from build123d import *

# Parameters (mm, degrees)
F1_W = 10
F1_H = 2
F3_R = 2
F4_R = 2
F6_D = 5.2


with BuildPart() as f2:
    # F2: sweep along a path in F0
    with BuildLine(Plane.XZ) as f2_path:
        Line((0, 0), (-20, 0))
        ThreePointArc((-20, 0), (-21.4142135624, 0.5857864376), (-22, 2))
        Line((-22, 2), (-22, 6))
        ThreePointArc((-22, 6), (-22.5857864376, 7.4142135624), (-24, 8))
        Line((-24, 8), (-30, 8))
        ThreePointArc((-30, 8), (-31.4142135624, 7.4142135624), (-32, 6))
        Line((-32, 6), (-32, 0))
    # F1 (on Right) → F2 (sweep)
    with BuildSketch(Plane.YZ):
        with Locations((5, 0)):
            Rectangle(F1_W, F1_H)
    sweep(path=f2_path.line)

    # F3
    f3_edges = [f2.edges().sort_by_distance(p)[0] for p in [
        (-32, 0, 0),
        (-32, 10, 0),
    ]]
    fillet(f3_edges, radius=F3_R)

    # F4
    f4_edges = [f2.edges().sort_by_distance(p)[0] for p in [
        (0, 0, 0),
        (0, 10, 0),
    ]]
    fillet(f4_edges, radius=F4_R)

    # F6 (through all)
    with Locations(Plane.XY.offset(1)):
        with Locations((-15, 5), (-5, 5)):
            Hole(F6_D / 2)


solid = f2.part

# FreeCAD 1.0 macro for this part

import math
import FreeCAD as App
import Part
import Sketcher


def edges_at(feature, points):
    """Names of the edges that pass closest to the given points."""
    edges = feature.Shape.Edges
    near = lambda p: min(range(len(edges)), key=lambda i: edges[i].distToShape(Part.Vertex(*p))[0])
    return sorted({f"Edge{near(p) + 1}" for p in points})


def add_polygon(sketch, points):
    """Adds a closed chain of lines whose ends are joined by coincident constraints."""
    first, n = sketch.GeometryCount, len(points)
    for a, b in zip(points, points[1:] + points[:1]):
        sketch.addGeometry(Part.LineSegment(App.Vector(*a, 0), App.Vector(*b, 0)), False)
    for i in range(n):
        sketch.addConstraint(Sketcher.Constraint("Coincident", first + i, 2, first + (i + 1) % n, 1))

doc = App.newDocument("Part")
body = doc.addObject("PartDesign::Body", "Body")

# Sketch on YZ plane
sketch1 = body.newObject("Sketcher::SketchObject", "Sketch")
sketch1.AttachmentSupport = (doc.getObject("YZ_Plane"), [""])
sketch1.MapMode = "FlatFace"
add_polygon(sketch1, [(0, 1), (0, -1), (10, -1), (10, 1)])  # lines 0-3
sketch1.addConstraint(Sketcher.Constraint("Vertical", 0))
sketch1.addConstraint(Sketcher.Constraint("Horizontal", 1))
sketch1.addConstraint(Sketcher.Constraint("Vertical", 2))
sketch1.addConstraint(Sketcher.Constraint("Horizontal", 3))
sketch1.addConstraint(Sketcher.Constraint("Symmetric", 0, 2, 3, 2, -1, 1))
sketch1.addConstraint(Sketcher.Constraint("DistanceX", 1, 1, 1, 2, 10.0))
sketch1.addConstraint(Sketcher.Constraint("DistanceY", 0, 2, 0, 1, 2.0))

# Sketch on XZ plane
sketch2 = body.newObject("Sketcher::SketchObject", "Sketch001")
sketch2.AttachmentSupport = (doc.getObject("XZ_Plane"), [""])
sketch2.MapMode = "FlatFace"
sketch2.addGeometry(Part.LineSegment(App.Vector(0, 0, 0), App.Vector(-20, 0, 0)), False)
sketch2.addGeometry(Part.ArcOfCircle(Part.Circle(App.Vector(-20, 2, 0), App.Vector(0, 0, 1), 2), math.radians(180), math.radians(270)), False)
sketch2.addGeometry(Part.LineSegment(App.Vector(-22, 2, 0), App.Vector(-22, 6, 0)), False)
sketch2.addGeometry(Part.ArcOfCircle(Part.Circle(App.Vector(-24, 6, 0), App.Vector(0, 0, 1), 2), math.radians(0), math.radians(90)), False)
sketch2.addGeometry(Part.LineSegment(App.Vector(-24, 8, 0), App.Vector(-30, 8, 0)), False)
sketch2.addGeometry(Part.ArcOfCircle(Part.Circle(App.Vector(-30, 6, 0), App.Vector(0, 0, 1), 2), math.radians(90), math.radians(180)), False)
sketch2.addGeometry(Part.LineSegment(App.Vector(-32, 6, 0), App.Vector(-32, 0, 0)), False)
sketch2.addConstraint(Sketcher.Constraint("Tangent", 0, 2, 1, 2))
sketch2.addConstraint(Sketcher.Constraint("Tangent", 1, 1, 2, 1))
sketch2.addConstraint(Sketcher.Constraint("Tangent", 2, 2, 3, 1))
sketch2.addConstraint(Sketcher.Constraint("Tangent", 3, 2, 4, 1))
sketch2.addConstraint(Sketcher.Constraint("Tangent", 4, 2, 5, 1))
sketch2.addConstraint(Sketcher.Constraint("Tangent", 5, 2, 6, 1))
sketch2.addConstraint(Sketcher.Constraint("Horizontal", 0))
sketch2.addConstraint(Sketcher.Constraint("Vertical", 2))
sketch2.addConstraint(Sketcher.Constraint("Horizontal", 4))
sketch2.addConstraint(Sketcher.Constraint("Vertical", 6))
sketch2.addConstraint(Sketcher.Constraint("Coincident", 0, 1, -1, 1))
sketch2.addConstraint(Sketcher.Constraint("Equal", 1, 3))
sketch2.addConstraint(Sketcher.Constraint("Equal", 3, 5))
sketch2.addConstraint(Sketcher.Constraint("PointOnObject", 6, 2, -1))
sketch2.addConstraint(Sketcher.Constraint("Equal", 4, 6))
sketch2.addConstraint(Sketcher.Constraint("Radius", 1, 2.0))
sketch2.addConstraint(Sketcher.Constraint("DistanceX", 0, 2, 0, 1, 20.0))
sketch2.addConstraint(Sketcher.Constraint("DistanceX", 4, 2, 4, 1, 6.0))
doc.recompute()

additivepipe = body.newObject("PartDesign::AdditivePipe", "AdditivePipe")
additivepipe.Profile = sketch1
additivepipe.Spine = (sketch2, ["Edge1", "Edge2", "Edge3", "Edge4", "Edge5", "Edge6", "Edge7"])
doc.recompute()

fillet = body.newObject("PartDesign::Fillet", "Fillet")
fillet.Base = (additivepipe, edges_at(additivepipe, [(-32, 0, 0), (-32, 10, 0)]))
fillet.Radius = 2
doc.recompute()

fillet2 = body.newObject("PartDesign::Fillet", "Fillet001")
fillet2.Base = (fillet, edges_at(fillet, [(0, 0, 0), (0, 10, 0)]))
fillet2.Radius = 2

# Sketch on XY plane
sketch3 = body.newObject("Sketcher::SketchObject", "Sketch002")
sketch3.AttachmentSupport = (doc.getObject("XY_Plane"), [""])
sketch3.MapMode = "FlatFace"
sketch3.AttachmentOffset = App.Placement(App.Vector(0, 0, 1), App.Rotation())
sketch3.addGeometry(Part.Circle(App.Vector(-15, 5, 0), App.Vector(0, 0, 1), 2.6), False)
sketch3.addGeometry(Part.Circle(App.Vector(-5, 5, 0), App.Vector(0, 0, 1), 2.6), False)
sketch3.addConstraint(Sketcher.Constraint("Equal", 0, 1))
sketch3.addConstraint(Sketcher.Constraint("Horizontal", 0, 3, 1, 3))
sketch3.addConstraint(Sketcher.Constraint("Diameter", 0, 5.2))
sketch3.addConstraint(Sketcher.Constraint("DistanceX", 0, 3, -1, 1, 15.0))
sketch3.addConstraint(Sketcher.Constraint("DistanceY", -1, 1, 0, 3, 5.0))
sketch3.addConstraint(Sketcher.Constraint("DistanceX", 1, 3, -1, 1, 5.0))
doc.recompute()
hole = body.newObject("PartDesign::Hole", "Hole")
hole.Profile = sketch3
hole.ThreadType = "None"
hole.Diameter = 5.2
hole.DepthType = "ThroughAll"

doc.recompute()
